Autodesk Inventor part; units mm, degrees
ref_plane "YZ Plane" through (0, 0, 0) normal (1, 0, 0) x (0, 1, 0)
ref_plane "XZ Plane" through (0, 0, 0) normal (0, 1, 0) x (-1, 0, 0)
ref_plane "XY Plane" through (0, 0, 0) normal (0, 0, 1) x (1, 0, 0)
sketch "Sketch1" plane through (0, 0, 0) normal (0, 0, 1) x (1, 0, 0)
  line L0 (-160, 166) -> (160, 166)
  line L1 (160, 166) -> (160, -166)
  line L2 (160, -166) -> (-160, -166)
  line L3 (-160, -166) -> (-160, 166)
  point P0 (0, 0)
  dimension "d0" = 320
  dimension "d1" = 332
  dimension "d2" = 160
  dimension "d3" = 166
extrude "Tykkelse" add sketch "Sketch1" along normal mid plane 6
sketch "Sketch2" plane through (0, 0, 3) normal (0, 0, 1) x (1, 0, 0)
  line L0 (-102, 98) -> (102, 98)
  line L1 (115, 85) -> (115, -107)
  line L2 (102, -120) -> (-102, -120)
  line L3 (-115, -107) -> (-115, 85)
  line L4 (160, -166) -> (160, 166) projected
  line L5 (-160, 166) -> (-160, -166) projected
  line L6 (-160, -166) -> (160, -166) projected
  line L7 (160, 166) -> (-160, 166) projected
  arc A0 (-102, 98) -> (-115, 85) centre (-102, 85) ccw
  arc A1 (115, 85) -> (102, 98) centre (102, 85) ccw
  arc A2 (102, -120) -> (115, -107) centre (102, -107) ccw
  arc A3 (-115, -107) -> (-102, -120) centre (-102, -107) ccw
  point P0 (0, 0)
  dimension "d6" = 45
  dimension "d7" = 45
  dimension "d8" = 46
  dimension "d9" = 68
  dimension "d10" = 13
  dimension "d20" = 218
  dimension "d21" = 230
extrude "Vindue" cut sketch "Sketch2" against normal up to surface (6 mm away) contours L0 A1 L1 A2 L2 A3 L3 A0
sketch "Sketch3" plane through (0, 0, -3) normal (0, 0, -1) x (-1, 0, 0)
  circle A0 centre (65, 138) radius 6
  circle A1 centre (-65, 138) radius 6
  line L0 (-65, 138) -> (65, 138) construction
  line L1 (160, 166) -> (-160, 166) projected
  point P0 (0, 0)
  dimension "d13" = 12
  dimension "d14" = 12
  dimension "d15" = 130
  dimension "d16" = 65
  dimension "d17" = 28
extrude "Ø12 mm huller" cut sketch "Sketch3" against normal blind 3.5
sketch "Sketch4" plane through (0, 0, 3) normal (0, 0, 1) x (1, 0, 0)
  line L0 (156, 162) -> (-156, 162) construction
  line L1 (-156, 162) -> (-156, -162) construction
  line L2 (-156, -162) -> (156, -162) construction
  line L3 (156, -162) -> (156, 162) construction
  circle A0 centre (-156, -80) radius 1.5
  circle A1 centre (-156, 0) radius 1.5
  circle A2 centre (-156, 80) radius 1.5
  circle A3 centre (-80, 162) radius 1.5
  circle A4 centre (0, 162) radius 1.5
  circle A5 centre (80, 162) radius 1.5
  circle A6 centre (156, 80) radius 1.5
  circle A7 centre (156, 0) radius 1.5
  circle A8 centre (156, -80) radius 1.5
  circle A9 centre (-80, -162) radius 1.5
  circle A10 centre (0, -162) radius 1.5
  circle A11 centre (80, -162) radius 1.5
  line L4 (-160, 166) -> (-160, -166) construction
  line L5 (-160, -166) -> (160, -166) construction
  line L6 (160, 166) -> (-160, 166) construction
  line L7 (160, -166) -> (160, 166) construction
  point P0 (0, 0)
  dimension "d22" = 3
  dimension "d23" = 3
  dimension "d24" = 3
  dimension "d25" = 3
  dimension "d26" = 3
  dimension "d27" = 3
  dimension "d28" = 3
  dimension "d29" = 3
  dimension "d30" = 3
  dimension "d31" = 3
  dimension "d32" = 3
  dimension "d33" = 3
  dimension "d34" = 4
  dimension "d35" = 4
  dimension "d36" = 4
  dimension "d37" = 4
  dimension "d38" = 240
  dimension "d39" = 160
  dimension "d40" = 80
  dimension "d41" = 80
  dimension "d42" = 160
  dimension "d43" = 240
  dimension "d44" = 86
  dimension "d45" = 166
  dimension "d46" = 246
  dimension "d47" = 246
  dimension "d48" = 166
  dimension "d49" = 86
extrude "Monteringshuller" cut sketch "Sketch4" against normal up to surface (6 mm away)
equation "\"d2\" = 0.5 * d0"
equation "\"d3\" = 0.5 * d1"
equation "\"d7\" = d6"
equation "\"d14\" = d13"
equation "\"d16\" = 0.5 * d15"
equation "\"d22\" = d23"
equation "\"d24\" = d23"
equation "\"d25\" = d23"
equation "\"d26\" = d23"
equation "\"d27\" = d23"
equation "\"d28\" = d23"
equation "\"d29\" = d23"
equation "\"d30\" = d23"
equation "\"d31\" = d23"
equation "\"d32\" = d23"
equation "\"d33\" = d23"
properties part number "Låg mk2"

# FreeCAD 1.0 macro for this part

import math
import FreeCAD as App
import Part
import Sketcher


def add_polygon(sketch, points):
    """Adds a closed chain of lines whose ends are joined by coincident constraints."""
    first, n = sketch.GeometryCount, len(points)
    for a, b in zip(points, points[1:] + points[:1]):
        sketch.addGeometry(Part.LineSegment(App.Vector(*a, 0), App.Vector(*b, 0)), False)
    for i in range(n):
        sketch.addConstraint(Sketcher.Constraint("Coincident", first + i, 2, first + (i + 1) % n, 1))

doc = App.newDocument("Part")
body = doc.addObject("PartDesign::Body", "Body")

sketch1 = body.newObject("Sketcher::SketchObject", "Sketch")
sketch1.AttachmentSupport = (doc.getObject("XY_Plane"), [""])
sketch1.MapMode = "FlatFace"
add_polygon(sketch1, [(160, 166), (-160, 166), (-160, -166), (160, -166)])
sketch1.addConstraint([
    Sketcher.Constraint("Horizontal", 0),
    Sketcher.Constraint("Vertical", 1),
    Sketcher.Constraint("Horizontal", 2),
    Sketcher.Constraint("Vertical", 3),
    Sketcher.Constraint("Symmetric", 0, 2, 2, 2, -1, 1),
    Sketcher.Constraint("DistanceX", 0, 2, 0, 1, 320.0),
    Sketcher.Constraint("DistanceY", 1, 2, 1, 1, 332.0),
])
pad1 = body.newObject("PartDesign::Pad", "Pad")
pad1.Profile = sketch1
pad1.Length = 6
pad1.Midplane = True

sketch2 = body.newObject("Sketcher::SketchObject", "Sketch001")
sketch2.AttachmentSupport = (doc.getObject("XY_Plane"), [""])
sketch2.MapMode = "FlatFace"
sketch2.AttachmentOffset = App.Placement(App.Vector(0, 0, 3), App.Rotation())
sketch2.addGeometry([
    Part.LineSegment(App.Vector(102, 98, 0), App.Vector(-102, 98, 0)),
    Part.ArcOfCircle(Part.Circle(App.Vector(-102, 85, 0), App.Vector(0, 0, 1), 13), math.radians(90), math.radians(180)),
    Part.LineSegment(App.Vector(-115, 85, 0), App.Vector(-115, -107, 0)),
    Part.ArcOfCircle(Part.Circle(App.Vector(-102, -107, 0), App.Vector(0, 0, 1), 13), math.radians(180), math.radians(270)),
    Part.LineSegment(App.Vector(-102, -120, 0), App.Vector(102, -120, 0)),
    Part.ArcOfCircle(Part.Circle(App.Vector(102, -107, 0), App.Vector(0, 0, 1), 13), math.radians(-90), math.radians(0)),
    Part.LineSegment(App.Vector(115, -107, 0), App.Vector(115, 85, 0)),
    Part.ArcOfCircle(Part.Circle(App.Vector(102, 85, 0), App.Vector(0, 0, 1), 13), math.radians(0), math.radians(90)),
], False)
sketch2.addConstraint([
    Sketcher.Constraint("Tangent", 0, 2, 1, 1),
    Sketcher.Constraint("Tangent", 1, 2, 2, 1),
    Sketcher.Constraint("Tangent", 2, 2, 3, 1),
    Sketcher.Constraint("Tangent", 3, 2, 4, 1),
    Sketcher.Constraint("Tangent", 4, 2, 5, 1),
    Sketcher.Constraint("Tangent", 5, 2, 6, 1),
    Sketcher.Constraint("Tangent", 6, 2, 7, 1),
    Sketcher.Constraint("Tangent", 7, 2, 0, 1),
    Sketcher.Constraint("Horizontal", 0),
    Sketcher.Constraint("Vertical", 2),
    Sketcher.Constraint("Horizontal", 4),
    Sketcher.Constraint("Vertical", 6),
    Sketcher.Constraint("Equal", 1, 3),
    Sketcher.Constraint("Equal", 3, 5),
    Sketcher.Constraint("Equal", 5, 7),
    Sketcher.Constraint("Radius", 1, 13.0),
    Sketcher.Constraint("DistanceX", 0, 2, 0, 1, 204.0),
    Sketcher.Constraint("DistanceY", 2, 2, 2, 1, 192.0),
    Sketcher.Constraint("DistanceX", 1, 3, -1, 1, 102.0),
    Sketcher.Constraint("DistanceY", -1, 1, 1, 3, 85.0),
])
pocket1 = body.newObject("PartDesign::Pocket", "Pocket")
pocket1.Profile = sketch2
pocket1.Length = 6

sketch3 = body.newObject("Sketcher::SketchObject", "Sketch002")
sketch3.AttachmentSupport = (doc.getObject("XY_Plane"), [""])
sketch3.MapMode = "FlatFace"
sketch3.AttachmentOffset = App.Placement(App.Vector(0, 0, -3), App.Rotation())
sketch3.addGeometry([
    Part.Circle(App.Vector(-65, 138, 0), App.Vector(0, 0, 1), 6),
    Part.Circle(App.Vector(65, 138, 0), App.Vector(0, 0, 1), 6),
], False)
sketch3.addConstraint([
    Sketcher.Constraint("Equal", 0, 1),
    Sketcher.Constraint("Symmetric", 0, 3, 1, 3, -2),
    Sketcher.Constraint("Diameter", 0, 12.0),
    Sketcher.Constraint("DistanceX", 0, 3, -1, 1, 65.0),
    Sketcher.Constraint("DistanceY", -1, 1, 0, 3, 138.0),
])
pocket2 = body.newObject("PartDesign::Pocket", "Pocket001")
pocket2.Profile = sketch3
pocket2.Length = 3.5
pocket2.Reversed = True

sketch4 = body.newObject("Sketcher::SketchObject", "Sketch003")
sketch4.AttachmentSupport = (doc.getObject("XY_Plane"), [""])
sketch4.MapMode = "FlatFace"
sketch4.AttachmentOffset = App.Placement(App.Vector(0, 0, 3), App.Rotation())
sketch4.addGeometry([
    Part.Circle(App.Vector(-156, -80, 0), App.Vector(0, 0, 1), 1.5),
    Part.Circle(App.Vector(-156, 0, 0), App.Vector(0, 0, 1), 1.5),
    Part.Circle(App.Vector(-156, 80, 0), App.Vector(0, 0, 1), 1.5),
    Part.Circle(App.Vector(-80, 162, 0), App.Vector(0, 0, 1), 1.5),
    Part.Circle(App.Vector(0, 162, 0), App.Vector(0, 0, 1), 1.5),
    Part.Circle(App.Vector(80, 162, 0), App.Vector(0, 0, 1), 1.5),
    Part.Circle(App.Vector(156, 80, 0), App.Vector(0, 0, 1), 1.5),
    Part.Circle(App.Vector(156, 0, 0), App.Vector(0, 0, 1), 1.5),
    Part.Circle(App.Vector(156, -80, 0), App.Vector(0, 0, 1), 1.5),
    Part.Circle(App.Vector(-80, -162, 0), App.Vector(0, 0, 1), 1.5),
    Part.Circle(App.Vector(0, -162, 0), App.Vector(0, 0, 1), 1.5),
    Part.Circle(App.Vector(80, -162, 0), App.Vector(0, 0, 1), 1.5),
], False)
sketch4.addConstraint([
    Sketcher.Constraint("Equal", 0, 1),
    Sketcher.Constraint("Equal", 1, 2),
    Sketcher.Constraint("Equal", 2, 3),
    Sketcher.Constraint("Equal", 3, 4),
    Sketcher.Constraint("Equal", 4, 5),
    Sketcher.Constraint("Equal", 5, 6),
    Sketcher.Constraint("Equal", 6, 7),
    Sketcher.Constraint("Equal", 7, 8),
    Sketcher.Constraint("Equal", 8, 9),
    Sketcher.Constraint("Equal", 9, 10),
    Sketcher.Constraint("Equal", 10, 11),
    Sketcher.Constraint("Symmetric", 0, 3, 6, 3, -1, 1),
    Sketcher.Constraint("Symmetric", 1, 3, 7, 3, -1, 1),
    Sketcher.Constraint("Symmetric", 2, 3, 8, 3, -1, 1),
    Sketcher.Constraint("Symmetric", 5, 3, 9, 3, -1, 1),
    Sketcher.Constraint("Symmetric", 4, 3, 10, 3, -1, 1),
    Sketcher.Constraint("Symmetric", 3, 3, 11, 3, -1, 1),
    Sketcher.Constraint("Symmetric", 3, 3, 5, 3, -2),
    Sketcher.Constraint("Symmetric", 2, 3, 6, 3, -2),
    Sketcher.Constraint("PointOnObject", 1, 3, -1),
    Sketcher.Constraint("PointOnObject", 4, 3, -2),
    Sketcher.Constraint("Horizontal", 3, 3, 4, 3),
    Sketcher.Constraint("Vertical", 0, 3, 1, 3),
    Sketcher.Constraint("Diameter", 0, 3.0),
    Sketcher.Constraint("DistanceY", 0, 3, -1, 1, 80.0),
    Sketcher.Constraint("DistanceX", 3, 3, -1, 1, 80.0),
    Sketcher.Constraint("DistanceX", 0, 3, -1, 1, 156.0),
    Sketcher.Constraint("DistanceY", -1, 1, 3, 3, 162.0),
])
pocket3 = body.newObject("PartDesign::Pocket", "Pocket002")
pocket3.Profile = sketch4
pocket3.Length = 6

doc.recompute()
